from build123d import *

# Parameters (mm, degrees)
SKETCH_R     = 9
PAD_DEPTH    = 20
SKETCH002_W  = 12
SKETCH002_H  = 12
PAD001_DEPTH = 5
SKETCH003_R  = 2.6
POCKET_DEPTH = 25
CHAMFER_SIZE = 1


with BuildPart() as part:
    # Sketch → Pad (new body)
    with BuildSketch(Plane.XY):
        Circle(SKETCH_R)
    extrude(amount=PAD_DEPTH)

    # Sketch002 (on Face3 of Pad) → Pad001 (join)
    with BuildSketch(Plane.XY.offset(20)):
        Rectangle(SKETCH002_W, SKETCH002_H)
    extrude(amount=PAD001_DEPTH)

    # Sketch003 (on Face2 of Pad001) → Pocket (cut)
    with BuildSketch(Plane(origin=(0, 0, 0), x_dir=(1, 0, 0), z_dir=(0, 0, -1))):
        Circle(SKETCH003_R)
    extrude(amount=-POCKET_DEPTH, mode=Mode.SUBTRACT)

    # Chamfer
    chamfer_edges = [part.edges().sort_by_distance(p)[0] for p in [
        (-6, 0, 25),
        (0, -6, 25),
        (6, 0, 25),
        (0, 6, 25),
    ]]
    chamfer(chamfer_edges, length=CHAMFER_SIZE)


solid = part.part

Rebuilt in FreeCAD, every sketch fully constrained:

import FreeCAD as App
import Part
import Sketcher

V = App.Vector
Q = App.Units.Quantity


def edges_at(feature, points):
    """Names of the edges that pass closest to the given points."""
    edges = feature.Shape.Edges
    near = lambda p: min(range(len(edges)), key=lambda i: edges[i].distToShape(Part.Vertex(*p))[0])
    return sorted({f"Edge{near(p) + 1}" for p in points})

doc = App.newDocument("Part")
params = doc.addObject("Spreadsheet::Sheet", "Params")
for row, (alias, value) in enumerate([
    ("sketch1_diameter", "18 mm"),
    ("pad1_length", "20 mm"),
    ("sketch2_width", "12 mm"),
    ("pad2_length", "5 mm"),
    ("sketch3_diameter", "5.2 mm"),
    ("pocket1_length", "25 mm"),
    ("chamfer_size", "1 mm"),
], start=1):
    params.set(f"A{row}", alias)
    params.set(f"B{row}", "=" + value)
    params.setAlias(f"B{row}", alias)

body = doc.addObject("PartDesign::Body", "Body")

sketch1 = doc.addObject("Sketcher::SketchObject", "Sketch")
body.addObject(sketch1)
sketch1.AttachmentSupport = (doc.XY_Plane, [""])
sketch1.MapMode = "FlatFace"
sketch1.addGeometry(Part.Circle(V(0, 0, 0), V(0, 0, 1), 9), False)
sketch1.addConstraint(Sketcher.Constraint("Coincident", 0, 3, -1, 1))
sketch1.addConstraint(Sketcher.Constraint("Diameter", 0, Q("18 mm")))
sketch1.setExpression("Constraints[1]", "Params.sketch1_diameter")
pad1 = doc.addObject("PartDesign::Pad", "Pad")
body.addObject(pad1)
pad1.Profile = sketch1
pad1.setExpression("Length", "Params.pad1_length")

sketch2 = doc.addObject("Sketcher::SketchObject", "Sketch001")
body.addObject(sketch2)
sketch2.AttachmentSupport = (doc.XY_Plane, [""])
sketch2.MapMode = "FlatFace"
sketch2.AttachmentOffset = App.Placement(V(0, 0, 20), App.Rotation())
sketch2.addGeometry(Part.LineSegment(V(-6, 6, 0), V(-6, -6, 0)), False)
sketch2.addGeometry(Part.LineSegment(V(-6, -6, 0), V(6, -6, 0)), False)
sketch2.addGeometry(Part.LineSegment(V(6, -6, 0), V(6, 6, 0)), False)
sketch2.addGeometry(Part.LineSegment(V(6, 6, 0), V(-6, 6, 0)), False)
sketch2.addConstraint(Sketcher.Constraint("Coincident", 0, 2, 1, 1))
sketch2.addConstraint(Sketcher.Constraint("Coincident", 1, 2, 2, 1))
sketch2.addConstraint(Sketcher.Constraint("Coincident", 2, 2, 3, 1))
sketch2.addConstraint(Sketcher.Constraint("Coincident", 3, 2, 0, 1))
sketch2.addConstraint(Sketcher.Constraint("Vertical", 0))
sketch2.addConstraint(Sketcher.Constraint("Horizontal", 1))
sketch2.addConstraint(Sketcher.Constraint("Vertical", 2))
sketch2.addConstraint(Sketcher.Constraint("Horizontal", 3))
sketch2.addConstraint(Sketcher.Constraint("Symmetric", 0, 2, 2, 2, -1, 1))
sketch2.addConstraint(Sketcher.Constraint("Equal", 3, 0))
sketch2.addConstraint(Sketcher.Constraint("DistanceX", 1, 1, 1, 2, Q("12 mm")))
sketch2.setExpression("Constraints[10]", "Params.sketch2_width")
pad2 = doc.addObject("PartDesign::Pad", "Pad001")
body.addObject(pad2)
pad2.Profile = sketch2
pad2.setExpression("Length", "Params.pad2_length")

sketch3 = doc.addObject("Sketcher::SketchObject", "Sketch002")
body.addObject(sketch3)
sketch3.AttachmentSupport = (doc.XY_Plane, [""])
sketch3.MapMode = "FlatFace"
sketch3.addGeometry(Part.Circle(V(0, 0, 0), V(0, 0, 1), 2.6), False)
sketch3.addConstraint(Sketcher.Constraint("Coincident", 0, 3, -1, 1))
sketch3.addConstraint(Sketcher.Constraint("Diameter", 0, Q("5.2 mm")))
sketch3.setExpression("Constraints[1]", "Params.sketch3_diameter")
pocket1 = doc.addObject("PartDesign::Pocket", "Pocket")
body.addObject(pocket1)
pocket1.Profile = sketch3
pocket1.setExpression("Length", "Params.pocket1_length")
pocket1.Reversed = True
doc.recompute()

chamfer = doc.addObject("PartDesign::Chamfer", "Chamfer")
body.addObject(chamfer)
chamfer.Base = (pocket1, edges_at(pocket1, [
    (-6, 0, 25),
    (0, -6, 25),
    (6, 0, 25),
    (0, 6, 25),
]))
chamfer.setExpression("Size", "Params.chamfer_size")

doc.recompute()
